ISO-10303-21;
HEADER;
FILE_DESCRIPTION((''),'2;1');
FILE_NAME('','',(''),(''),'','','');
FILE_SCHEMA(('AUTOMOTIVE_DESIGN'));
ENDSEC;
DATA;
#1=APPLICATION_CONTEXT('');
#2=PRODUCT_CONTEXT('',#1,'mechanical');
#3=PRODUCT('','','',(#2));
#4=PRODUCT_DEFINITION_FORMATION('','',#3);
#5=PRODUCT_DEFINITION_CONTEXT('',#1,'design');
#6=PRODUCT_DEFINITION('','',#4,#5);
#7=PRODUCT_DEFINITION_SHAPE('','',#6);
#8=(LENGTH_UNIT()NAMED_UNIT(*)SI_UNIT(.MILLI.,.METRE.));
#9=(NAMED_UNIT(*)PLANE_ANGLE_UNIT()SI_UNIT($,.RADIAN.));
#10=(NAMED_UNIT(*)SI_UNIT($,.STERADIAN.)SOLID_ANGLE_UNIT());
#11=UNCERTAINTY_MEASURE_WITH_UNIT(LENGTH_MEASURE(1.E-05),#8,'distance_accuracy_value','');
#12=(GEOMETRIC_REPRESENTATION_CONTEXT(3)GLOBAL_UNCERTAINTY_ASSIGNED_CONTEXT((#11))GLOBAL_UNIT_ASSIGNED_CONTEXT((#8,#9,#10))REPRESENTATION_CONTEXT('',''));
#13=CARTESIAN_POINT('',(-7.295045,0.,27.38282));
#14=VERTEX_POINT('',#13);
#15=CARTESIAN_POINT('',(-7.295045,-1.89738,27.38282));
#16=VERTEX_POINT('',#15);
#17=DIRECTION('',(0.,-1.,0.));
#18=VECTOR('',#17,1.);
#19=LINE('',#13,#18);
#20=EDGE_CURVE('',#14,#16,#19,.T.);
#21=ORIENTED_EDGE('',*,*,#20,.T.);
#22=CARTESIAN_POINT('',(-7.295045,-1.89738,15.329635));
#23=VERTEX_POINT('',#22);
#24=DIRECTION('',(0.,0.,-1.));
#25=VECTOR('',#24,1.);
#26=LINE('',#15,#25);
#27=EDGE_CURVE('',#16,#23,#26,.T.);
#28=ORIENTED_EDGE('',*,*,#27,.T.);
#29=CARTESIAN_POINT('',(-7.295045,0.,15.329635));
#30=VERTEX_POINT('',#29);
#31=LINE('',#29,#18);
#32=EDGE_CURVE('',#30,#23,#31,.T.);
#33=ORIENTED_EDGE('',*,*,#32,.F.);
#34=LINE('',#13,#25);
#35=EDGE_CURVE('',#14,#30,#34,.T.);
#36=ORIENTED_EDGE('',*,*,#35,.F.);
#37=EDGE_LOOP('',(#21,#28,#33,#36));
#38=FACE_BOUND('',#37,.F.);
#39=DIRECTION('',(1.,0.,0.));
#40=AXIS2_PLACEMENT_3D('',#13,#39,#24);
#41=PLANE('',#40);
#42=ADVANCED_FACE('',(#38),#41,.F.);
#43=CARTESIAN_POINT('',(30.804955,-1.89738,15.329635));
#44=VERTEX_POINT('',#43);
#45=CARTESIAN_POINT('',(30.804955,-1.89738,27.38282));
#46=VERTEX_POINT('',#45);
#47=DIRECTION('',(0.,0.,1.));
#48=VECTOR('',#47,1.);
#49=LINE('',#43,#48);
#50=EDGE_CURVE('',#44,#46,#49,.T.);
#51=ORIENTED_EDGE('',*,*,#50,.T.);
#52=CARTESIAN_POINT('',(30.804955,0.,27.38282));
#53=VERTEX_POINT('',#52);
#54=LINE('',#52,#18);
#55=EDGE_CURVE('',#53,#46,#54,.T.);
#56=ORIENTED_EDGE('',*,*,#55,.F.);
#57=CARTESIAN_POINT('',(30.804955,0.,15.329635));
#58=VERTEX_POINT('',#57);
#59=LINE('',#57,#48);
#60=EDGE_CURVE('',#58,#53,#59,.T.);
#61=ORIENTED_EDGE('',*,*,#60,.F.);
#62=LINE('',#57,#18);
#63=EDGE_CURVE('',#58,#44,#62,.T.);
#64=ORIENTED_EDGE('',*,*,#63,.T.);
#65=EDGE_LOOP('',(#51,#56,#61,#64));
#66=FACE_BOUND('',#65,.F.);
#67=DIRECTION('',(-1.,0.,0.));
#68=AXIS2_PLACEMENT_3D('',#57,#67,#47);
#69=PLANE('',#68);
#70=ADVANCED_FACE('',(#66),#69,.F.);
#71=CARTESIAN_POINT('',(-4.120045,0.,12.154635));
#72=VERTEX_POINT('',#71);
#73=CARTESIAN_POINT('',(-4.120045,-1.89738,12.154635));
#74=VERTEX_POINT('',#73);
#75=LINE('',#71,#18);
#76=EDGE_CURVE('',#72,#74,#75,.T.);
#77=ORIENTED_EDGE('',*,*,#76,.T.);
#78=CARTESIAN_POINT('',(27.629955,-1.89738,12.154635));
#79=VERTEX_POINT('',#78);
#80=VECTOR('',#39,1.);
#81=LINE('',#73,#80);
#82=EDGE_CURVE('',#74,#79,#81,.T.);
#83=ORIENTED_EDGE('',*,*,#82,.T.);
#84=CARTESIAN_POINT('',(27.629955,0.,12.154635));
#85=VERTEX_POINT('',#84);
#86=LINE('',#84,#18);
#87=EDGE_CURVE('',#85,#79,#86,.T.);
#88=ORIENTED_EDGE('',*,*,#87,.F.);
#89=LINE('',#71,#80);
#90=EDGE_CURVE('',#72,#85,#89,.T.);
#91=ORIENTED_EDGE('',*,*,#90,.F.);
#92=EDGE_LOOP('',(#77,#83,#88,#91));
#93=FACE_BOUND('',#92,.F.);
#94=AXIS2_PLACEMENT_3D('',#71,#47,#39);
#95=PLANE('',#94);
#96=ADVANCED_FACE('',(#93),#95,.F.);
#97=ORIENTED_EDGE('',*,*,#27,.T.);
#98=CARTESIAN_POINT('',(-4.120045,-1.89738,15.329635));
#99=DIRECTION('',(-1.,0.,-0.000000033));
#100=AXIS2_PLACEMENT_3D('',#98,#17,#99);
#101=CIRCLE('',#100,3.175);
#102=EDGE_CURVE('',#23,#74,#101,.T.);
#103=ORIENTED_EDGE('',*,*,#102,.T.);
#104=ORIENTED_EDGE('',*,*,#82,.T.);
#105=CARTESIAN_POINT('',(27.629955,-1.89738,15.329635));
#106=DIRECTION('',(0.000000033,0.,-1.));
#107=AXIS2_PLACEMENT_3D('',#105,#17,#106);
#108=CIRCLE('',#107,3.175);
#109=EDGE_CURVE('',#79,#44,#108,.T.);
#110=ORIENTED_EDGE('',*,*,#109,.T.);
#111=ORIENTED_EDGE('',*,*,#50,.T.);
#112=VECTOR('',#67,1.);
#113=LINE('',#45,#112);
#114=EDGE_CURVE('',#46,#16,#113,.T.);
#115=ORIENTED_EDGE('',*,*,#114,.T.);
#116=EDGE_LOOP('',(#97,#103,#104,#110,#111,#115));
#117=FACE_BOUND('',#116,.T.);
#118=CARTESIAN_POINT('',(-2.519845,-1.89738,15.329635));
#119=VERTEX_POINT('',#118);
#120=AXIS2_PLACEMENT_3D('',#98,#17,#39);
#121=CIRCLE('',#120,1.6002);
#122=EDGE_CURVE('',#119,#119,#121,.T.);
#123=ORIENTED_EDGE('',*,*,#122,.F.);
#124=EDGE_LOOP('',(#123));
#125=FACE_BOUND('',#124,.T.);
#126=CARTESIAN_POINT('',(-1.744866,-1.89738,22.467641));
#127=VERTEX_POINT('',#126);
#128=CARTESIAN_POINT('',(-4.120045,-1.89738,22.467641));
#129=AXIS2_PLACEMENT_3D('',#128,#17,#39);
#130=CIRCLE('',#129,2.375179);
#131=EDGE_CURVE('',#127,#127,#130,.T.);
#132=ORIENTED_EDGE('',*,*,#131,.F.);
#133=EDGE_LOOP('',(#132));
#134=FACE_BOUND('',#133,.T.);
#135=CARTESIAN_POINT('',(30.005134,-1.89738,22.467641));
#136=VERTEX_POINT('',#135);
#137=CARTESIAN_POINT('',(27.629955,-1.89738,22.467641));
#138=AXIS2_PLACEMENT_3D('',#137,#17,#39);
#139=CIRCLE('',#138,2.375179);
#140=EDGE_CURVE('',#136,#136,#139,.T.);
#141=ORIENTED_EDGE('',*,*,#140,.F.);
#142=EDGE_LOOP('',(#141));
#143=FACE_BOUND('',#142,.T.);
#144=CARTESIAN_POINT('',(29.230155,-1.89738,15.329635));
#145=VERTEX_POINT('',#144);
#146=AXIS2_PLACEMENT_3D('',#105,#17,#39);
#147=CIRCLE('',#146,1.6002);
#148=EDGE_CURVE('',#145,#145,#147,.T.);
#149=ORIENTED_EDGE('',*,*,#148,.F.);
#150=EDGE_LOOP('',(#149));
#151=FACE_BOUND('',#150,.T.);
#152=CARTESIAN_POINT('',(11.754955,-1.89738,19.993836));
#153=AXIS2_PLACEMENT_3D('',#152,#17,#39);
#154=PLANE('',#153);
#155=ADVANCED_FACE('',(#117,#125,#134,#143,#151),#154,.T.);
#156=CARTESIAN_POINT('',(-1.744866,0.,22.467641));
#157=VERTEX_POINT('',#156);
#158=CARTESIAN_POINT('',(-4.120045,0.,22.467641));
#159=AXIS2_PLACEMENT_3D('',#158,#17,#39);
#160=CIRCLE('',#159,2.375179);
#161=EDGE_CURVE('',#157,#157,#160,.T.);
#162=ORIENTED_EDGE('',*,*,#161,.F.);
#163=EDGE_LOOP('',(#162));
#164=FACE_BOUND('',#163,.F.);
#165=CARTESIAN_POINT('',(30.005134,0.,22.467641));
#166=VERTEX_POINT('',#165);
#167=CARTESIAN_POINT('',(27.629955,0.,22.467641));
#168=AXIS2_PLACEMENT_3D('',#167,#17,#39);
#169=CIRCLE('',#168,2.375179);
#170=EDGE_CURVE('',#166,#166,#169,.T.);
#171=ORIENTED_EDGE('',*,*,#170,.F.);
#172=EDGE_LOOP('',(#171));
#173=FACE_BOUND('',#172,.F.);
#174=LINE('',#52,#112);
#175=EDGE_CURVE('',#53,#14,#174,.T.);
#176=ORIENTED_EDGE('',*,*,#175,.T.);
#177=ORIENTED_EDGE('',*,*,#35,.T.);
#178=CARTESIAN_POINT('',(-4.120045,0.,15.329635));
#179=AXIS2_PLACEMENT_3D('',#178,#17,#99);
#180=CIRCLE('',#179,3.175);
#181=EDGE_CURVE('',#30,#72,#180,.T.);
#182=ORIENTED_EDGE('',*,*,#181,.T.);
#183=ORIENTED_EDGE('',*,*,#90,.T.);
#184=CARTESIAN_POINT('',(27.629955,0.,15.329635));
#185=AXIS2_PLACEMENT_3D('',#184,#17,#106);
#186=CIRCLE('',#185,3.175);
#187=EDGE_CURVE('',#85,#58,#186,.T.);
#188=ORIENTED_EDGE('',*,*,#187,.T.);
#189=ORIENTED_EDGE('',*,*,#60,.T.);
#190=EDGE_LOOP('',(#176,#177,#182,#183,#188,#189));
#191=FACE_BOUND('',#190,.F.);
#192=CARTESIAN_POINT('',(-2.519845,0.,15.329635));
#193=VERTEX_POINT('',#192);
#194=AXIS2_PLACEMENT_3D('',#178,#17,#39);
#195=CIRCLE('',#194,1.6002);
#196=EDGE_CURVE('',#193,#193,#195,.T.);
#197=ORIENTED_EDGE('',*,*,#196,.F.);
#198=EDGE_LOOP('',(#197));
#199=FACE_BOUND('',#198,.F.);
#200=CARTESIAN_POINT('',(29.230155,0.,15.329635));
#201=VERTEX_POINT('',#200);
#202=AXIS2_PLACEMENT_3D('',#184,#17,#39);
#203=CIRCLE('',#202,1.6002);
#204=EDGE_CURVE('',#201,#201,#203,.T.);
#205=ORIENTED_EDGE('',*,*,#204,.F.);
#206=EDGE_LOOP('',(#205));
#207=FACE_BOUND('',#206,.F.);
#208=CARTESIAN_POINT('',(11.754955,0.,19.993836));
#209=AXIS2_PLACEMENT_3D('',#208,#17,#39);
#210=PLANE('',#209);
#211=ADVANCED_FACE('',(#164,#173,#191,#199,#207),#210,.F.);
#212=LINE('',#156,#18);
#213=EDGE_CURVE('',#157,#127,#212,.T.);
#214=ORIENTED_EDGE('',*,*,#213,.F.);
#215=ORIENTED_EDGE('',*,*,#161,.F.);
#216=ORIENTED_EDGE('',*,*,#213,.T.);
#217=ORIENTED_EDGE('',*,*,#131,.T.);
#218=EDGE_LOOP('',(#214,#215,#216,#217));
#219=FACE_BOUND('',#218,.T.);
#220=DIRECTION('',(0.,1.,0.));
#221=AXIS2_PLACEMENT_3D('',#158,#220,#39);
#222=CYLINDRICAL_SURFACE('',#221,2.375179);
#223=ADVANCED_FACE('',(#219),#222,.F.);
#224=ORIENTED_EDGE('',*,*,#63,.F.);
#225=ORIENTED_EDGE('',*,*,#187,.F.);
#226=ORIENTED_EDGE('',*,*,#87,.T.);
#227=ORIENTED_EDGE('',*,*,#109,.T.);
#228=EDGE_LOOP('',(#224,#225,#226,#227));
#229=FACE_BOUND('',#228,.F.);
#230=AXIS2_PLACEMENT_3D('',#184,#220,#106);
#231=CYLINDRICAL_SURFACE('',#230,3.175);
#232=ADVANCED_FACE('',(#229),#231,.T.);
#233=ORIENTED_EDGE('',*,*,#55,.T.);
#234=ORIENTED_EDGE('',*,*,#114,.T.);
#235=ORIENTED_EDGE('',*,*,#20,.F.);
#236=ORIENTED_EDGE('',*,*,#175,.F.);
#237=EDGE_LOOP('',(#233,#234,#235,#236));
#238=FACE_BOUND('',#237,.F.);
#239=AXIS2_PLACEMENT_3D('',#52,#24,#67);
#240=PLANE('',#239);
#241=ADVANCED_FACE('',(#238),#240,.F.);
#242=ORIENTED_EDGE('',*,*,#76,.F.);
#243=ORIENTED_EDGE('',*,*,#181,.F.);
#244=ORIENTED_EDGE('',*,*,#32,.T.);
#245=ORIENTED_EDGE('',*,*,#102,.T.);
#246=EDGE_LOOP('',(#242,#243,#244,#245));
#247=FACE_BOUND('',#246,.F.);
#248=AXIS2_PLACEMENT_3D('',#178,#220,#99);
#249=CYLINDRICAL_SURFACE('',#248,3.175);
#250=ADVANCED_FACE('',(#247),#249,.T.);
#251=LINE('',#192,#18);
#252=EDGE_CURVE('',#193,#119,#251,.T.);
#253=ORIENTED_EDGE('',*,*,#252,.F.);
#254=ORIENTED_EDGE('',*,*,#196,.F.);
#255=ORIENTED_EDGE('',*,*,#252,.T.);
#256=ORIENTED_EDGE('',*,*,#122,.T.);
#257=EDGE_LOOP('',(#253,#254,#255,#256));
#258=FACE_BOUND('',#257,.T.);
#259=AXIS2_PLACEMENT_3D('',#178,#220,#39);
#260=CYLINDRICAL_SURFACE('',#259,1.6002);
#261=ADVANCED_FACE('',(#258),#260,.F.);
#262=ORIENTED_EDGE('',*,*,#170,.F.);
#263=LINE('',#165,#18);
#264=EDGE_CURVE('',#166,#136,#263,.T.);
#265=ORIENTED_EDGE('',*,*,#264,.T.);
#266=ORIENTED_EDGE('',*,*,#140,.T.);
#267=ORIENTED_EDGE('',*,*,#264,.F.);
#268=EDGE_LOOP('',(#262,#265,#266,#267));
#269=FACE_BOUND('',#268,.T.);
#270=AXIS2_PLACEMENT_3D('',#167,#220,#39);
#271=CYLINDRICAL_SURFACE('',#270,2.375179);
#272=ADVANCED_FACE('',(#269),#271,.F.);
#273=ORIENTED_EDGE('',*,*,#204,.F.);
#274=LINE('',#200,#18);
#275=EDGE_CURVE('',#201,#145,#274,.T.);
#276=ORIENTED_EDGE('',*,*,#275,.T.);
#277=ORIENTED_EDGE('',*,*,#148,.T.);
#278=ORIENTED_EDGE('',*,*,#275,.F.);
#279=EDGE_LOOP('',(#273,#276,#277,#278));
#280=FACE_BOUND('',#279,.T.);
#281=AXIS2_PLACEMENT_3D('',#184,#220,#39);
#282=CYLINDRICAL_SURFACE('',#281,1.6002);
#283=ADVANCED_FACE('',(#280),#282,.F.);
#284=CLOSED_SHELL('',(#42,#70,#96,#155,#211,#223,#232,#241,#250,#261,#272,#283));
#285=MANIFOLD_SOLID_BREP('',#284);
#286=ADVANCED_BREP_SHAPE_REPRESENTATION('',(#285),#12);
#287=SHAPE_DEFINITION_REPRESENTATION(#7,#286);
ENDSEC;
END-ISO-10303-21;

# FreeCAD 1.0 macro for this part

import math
import FreeCAD as App
import Part
import Sketcher
Q = App.Units.Quantity

doc = App.newDocument("Part")
params = doc.addObject("Spreadsheet::Sheet", "Params")
for row, (alias, value) in enumerate([
    ("sketch1_diameter", "0.126 in"),
    ("sketch1_width", "1.5 in"),
    ("sketch1_radius", "0.125 in"),
    ("pad1_length", "0.0747 in"),
], start=1):
    params.set(f"A{row}", alias)
    params.set(f"B{row}", "=" + value)
    params.setAlias(f"B{row}", alias)

body = doc.addObject("PartDesign::Body", "Body")

# Sketch on XZ plane
sketch1 = body.newObject("Sketcher::SketchObject", "Sketch")
sketch1.AttachmentSupport = (doc.getObject("XZ_Plane"), [""])
sketch1.MapMode = "FlatFace"
sketch1.addGeometry([
    Part.LineSegment(App.Vector(30.804955, 27.38282, 0), App.Vector(-7.295045, 27.38282, 0)),  # 0
    Part.LineSegment(App.Vector(-7.295045, 27.38282, 0), App.Vector(-7.295045, 15.329635, 0)),  # 1
    Part.ArcOfCircle(Part.Circle(App.Vector(-4.120045, 15.329635, 0), App.Vector(0, 0, 1), 3.175), math.radians(-179.999998), math.radians(-90.000002)),  # 2
    Part.LineSegment(App.Vector(-4.120045, 12.154635, 0), App.Vector(27.629955, 12.154635, 0)),  # 3
    Part.ArcOfCircle(Part.Circle(App.Vector(27.629955, 15.329635, 0), App.Vector(0, 0, 1), 3.175), math.radians(-89.999998), math.radians(-0.000002)),  # 4
    Part.LineSegment(App.Vector(30.804955, 15.329635, 0), App.Vector(30.804955, 27.38282, 0)),  # 5
    Part.Circle(App.Vector(-4.120045, 15.329635, 0), App.Vector(0, 0, 1), 1.6002),  # 6
    Part.Circle(App.Vector(27.629955, 15.329635, 0), App.Vector(0, 0, 1), 1.6002),  # 7
    Part.Circle(App.Vector(-4.120045, 22.467641, 0), App.Vector(0, 0, 1), 2.375179),  # 8
    Part.Circle(App.Vector(27.629955, 22.467641, 0), App.Vector(0, 0, 1), 2.375179),  # 9
], False)
sketch1.addConstraint([
    Sketcher.Constraint("Coincident", 0, 2, 1, 1),
    Sketcher.Constraint("Tangent", 1, 2, 2, 1),
    Sketcher.Constraint("Tangent", 2, 2, 3, 1),
    Sketcher.Constraint("Tangent", 3, 2, 4, 1),
    Sketcher.Constraint("Tangent", 4, 2, 5, 1),
    Sketcher.Constraint("Coincident", 5, 2, 0, 1),
    Sketcher.Constraint("Horizontal", 0),
    Sketcher.Constraint("Vertical", 1),
    Sketcher.Constraint("Horizontal", 3),
    Sketcher.Constraint("Vertical", 5),
    Sketcher.Constraint("Coincident", 6, 3, 2, 3),
    Sketcher.Constraint("Coincident", 7, 3, 4, 3),
    Sketcher.Constraint("Equal", 2, 4),
    Sketcher.Constraint("Equal", 6, 7),
    Sketcher.Constraint("Equal", 8, 9),
    Sketcher.Constraint("Horizontal", 8, 3, 9, 3),
    Sketcher.Constraint("Vertical", 6, 3, 8, 3),
    Sketcher.Constraint("Vertical", 7, 3, 9, 3),
    Sketcher.Constraint("Diameter", 6, Q("0.126 in")),
    Sketcher.Constraint("DistanceX", 0, 2, 0, 1, Q("1.5 in")),
    Sketcher.Constraint("Radius", 2, Q("0.125 in")),
    Sketcher.Constraint("Diameter", 8, 4.750358),
    Sketcher.Constraint("DistanceY", 1, 2, 1, 1, 12.053185),
    Sketcher.Constraint("DistanceY", -1, 1, 8, 3, 22.467641),
    Sketcher.Constraint("DistanceY", -1, 1, 0, 2, 27.38282),
    Sketcher.Constraint("DistanceX", 2, 3, -1, 1, 4.120045),
])
sketch1.setExpression("Constraints[18]", "Params.sketch1_diameter")
sketch1.setExpression("Constraints[19]", "Params.sketch1_width")
sketch1.setExpression("Constraints[20]", "Params.sketch1_radius")
pad1 = body.newObject("PartDesign::Pad", "Pad")
pad1.Profile = sketch1
pad1.setExpression("Length", "Params.pad1_length")

doc.recompute()
